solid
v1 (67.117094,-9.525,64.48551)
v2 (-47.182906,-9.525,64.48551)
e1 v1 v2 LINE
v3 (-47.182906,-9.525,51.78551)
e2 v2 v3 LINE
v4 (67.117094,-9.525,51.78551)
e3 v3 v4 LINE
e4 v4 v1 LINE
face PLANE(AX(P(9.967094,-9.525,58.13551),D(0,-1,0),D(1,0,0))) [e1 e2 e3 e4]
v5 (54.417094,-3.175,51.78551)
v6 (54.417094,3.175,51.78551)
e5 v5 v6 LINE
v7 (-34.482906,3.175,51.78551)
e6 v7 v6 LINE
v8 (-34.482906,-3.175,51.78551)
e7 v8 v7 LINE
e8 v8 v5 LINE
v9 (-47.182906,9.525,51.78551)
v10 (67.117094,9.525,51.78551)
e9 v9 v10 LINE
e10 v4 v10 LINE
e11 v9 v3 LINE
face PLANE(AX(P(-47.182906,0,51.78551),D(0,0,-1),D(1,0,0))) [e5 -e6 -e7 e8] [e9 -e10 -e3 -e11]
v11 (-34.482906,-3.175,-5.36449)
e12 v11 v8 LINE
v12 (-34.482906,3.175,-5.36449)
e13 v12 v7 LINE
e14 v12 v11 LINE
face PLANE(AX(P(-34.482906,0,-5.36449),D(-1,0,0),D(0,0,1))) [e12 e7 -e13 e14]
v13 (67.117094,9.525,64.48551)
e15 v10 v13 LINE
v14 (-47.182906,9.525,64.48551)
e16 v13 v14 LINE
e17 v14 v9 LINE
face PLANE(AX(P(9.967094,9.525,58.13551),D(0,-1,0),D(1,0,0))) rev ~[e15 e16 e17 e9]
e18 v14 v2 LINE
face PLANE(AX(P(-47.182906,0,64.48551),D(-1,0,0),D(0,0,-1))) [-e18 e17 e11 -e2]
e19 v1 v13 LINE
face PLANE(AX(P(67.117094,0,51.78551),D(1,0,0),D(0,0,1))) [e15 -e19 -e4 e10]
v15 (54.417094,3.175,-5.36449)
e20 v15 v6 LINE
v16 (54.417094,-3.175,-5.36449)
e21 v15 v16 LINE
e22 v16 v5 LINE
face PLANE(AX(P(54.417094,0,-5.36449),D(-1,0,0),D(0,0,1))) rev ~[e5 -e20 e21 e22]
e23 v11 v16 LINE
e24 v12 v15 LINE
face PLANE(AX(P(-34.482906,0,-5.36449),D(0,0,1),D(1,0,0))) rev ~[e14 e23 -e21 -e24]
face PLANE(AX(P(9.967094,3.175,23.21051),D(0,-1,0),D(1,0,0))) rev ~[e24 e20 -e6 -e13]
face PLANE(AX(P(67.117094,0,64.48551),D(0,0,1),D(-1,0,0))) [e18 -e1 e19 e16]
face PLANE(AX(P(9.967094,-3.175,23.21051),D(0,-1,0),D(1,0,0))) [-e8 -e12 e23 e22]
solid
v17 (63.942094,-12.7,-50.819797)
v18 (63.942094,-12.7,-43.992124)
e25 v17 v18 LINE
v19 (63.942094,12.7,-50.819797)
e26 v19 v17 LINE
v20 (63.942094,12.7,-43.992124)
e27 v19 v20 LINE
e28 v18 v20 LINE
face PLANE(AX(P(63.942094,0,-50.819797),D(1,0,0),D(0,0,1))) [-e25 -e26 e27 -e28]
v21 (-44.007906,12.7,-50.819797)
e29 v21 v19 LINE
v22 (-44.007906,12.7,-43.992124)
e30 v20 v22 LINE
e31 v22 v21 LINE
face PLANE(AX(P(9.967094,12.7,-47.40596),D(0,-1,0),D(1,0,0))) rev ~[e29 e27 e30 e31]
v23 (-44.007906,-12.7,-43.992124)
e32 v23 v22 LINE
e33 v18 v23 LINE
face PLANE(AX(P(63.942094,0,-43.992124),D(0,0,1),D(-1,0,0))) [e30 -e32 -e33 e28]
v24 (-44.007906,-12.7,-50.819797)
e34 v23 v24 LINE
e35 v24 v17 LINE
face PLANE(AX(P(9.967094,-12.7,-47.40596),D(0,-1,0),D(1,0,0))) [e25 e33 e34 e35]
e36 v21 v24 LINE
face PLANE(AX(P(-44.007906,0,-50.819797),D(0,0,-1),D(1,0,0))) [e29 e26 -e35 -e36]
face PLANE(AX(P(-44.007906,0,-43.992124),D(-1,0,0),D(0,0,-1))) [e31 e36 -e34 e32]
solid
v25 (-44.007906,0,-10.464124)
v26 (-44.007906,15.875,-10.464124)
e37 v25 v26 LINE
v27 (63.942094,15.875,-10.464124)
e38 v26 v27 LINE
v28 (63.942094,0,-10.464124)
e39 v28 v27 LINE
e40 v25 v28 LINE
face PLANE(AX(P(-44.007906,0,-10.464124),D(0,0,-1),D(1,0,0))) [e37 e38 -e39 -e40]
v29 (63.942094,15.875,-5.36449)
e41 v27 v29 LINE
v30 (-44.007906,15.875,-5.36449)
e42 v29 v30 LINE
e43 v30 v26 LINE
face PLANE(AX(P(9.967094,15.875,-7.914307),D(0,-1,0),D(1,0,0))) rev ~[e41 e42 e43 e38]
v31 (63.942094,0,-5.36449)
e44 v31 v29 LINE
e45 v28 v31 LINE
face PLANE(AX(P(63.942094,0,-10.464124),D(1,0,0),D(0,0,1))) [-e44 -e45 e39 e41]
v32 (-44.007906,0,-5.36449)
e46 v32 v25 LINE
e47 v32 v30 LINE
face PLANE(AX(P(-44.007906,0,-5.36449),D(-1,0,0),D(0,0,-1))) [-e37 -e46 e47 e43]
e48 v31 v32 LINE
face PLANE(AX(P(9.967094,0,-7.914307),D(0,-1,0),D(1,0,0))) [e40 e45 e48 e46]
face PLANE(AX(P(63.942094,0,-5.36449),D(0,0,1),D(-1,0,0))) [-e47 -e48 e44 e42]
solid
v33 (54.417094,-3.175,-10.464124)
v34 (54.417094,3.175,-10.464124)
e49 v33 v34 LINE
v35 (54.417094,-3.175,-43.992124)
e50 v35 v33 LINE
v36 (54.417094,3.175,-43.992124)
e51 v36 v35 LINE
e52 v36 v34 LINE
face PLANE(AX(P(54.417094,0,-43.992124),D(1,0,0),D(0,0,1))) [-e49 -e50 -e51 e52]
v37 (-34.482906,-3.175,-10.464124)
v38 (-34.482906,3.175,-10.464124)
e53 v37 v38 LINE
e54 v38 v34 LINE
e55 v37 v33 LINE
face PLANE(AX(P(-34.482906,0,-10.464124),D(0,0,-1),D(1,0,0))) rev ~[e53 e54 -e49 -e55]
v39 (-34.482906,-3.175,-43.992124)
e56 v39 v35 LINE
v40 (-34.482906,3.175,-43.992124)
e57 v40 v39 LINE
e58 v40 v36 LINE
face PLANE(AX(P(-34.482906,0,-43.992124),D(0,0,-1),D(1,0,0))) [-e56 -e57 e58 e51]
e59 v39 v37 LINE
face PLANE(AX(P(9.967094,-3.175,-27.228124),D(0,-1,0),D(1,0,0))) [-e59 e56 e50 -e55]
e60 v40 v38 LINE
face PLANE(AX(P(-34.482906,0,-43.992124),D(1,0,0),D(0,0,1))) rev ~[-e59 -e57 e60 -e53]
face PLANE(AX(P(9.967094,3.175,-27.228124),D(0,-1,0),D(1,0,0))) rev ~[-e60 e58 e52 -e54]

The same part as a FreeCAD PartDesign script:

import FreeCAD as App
import Part
import Sketcher
Q = App.Units.Quantity


def add_polygon(sketch, points):
    """Adds a closed chain of lines whose ends are joined by coincident constraints."""
    first, n = sketch.GeometryCount, len(points)
    for a, b in zip(points, points[1:] + points[:1]):
        sketch.addGeometry(Part.LineSegment(App.Vector(*a, 0), App.Vector(*b, 0)), False)
    for i in range(n):
        sketch.addConstraint(Sketcher.Constraint("Coincident", first + i, 2, first + (i + 1) % n, 1))

doc = App.newDocument("Part")
params = doc.addObject("Spreadsheet::Sheet", "Params")
for row, (alias, value) in enumerate([
    ("sketch1_width", "4.5 in"),
    ("sketch1_height", "0.5 in"),
    ("pad1_length", "0.75 in"),
    ("sketch2_width", "3.5 in"),
    ("sketch2_height", "2.25 in"),
    ("sketch2_height2", "1.32 in"),
    ("pad2_length", "0.25 in"),
    ("sketch3_width", "4.25 in"),
    ("pad3_length", "1 in"),
    ("sketch4_width", "4.25 in"),
    ("pad4_length", "0.625 in"),
], start=1):
    params.set(f"A{row}", alias)
    params.set(f"B{row}", "=" + value)
    params.setAlias(f"B{row}", alias)

body = doc.addObject("PartDesign::Body", "Body")
body.AllowCompound = True

sketch1 = doc.addObject("Sketcher::SketchObject", "Sketch")
body.addObject(sketch1)
sketch1.AttachmentSupport = (doc.XZ_Plane, [""])
sketch1.MapMode = "FlatFace"
add_polygon(sketch1, [(67.117094, 64.48551), (-47.182906, 64.48551), (-47.182906, 51.78551), (67.117094, 51.78551)])
sketch1.addConstraint(Sketcher.Constraint("Horizontal", 0))
sketch1.addConstraint(Sketcher.Constraint("Vertical", 1))
sketch1.addConstraint(Sketcher.Constraint("Horizontal", 2))
sketch1.addConstraint(Sketcher.Constraint("Vertical", 3))
sketch1.addConstraint(Sketcher.Constraint("DistanceX", 0, 2, 0, 1, Q("4.5 in")))
sketch1.addConstraint(Sketcher.Constraint("DistanceY", 1, 2, 1, 1, Q("0.5 in")))
sketch1.addConstraint(Sketcher.Constraint("DistanceY", -1, 1, 0, 2, Q("64.48551 mm")))
sketch1.addConstraint(Sketcher.Constraint("DistanceX", 0, 2, -1, 1, Q("47.182906 mm")))
sketch1.setExpression("Constraints[8]", "Params.sketch1_width")
sketch1.setExpression("Constraints[9]", "Params.sketch1_height")
pad1 = doc.addObject("PartDesign::Pad", "Pad")
body.addObject(pad1)
pad1.Profile = sketch1
pad1.setExpression("Length", "Params.pad1_length")
pad1.Midplane = True

sketch2 = doc.addObject("Sketcher::SketchObject", "Sketch001")
body.addObject(sketch2)
sketch2.AttachmentSupport = (doc.XZ_Plane, [""])
sketch2.MapMode = "FlatFace"
add_polygon(sketch2, [(-34.482906, 51.78551), (-34.482906, -5.36449), (54.417094, -5.36449), (54.417094, 51.78551)])
add_polygon(sketch2, [(-34.482906, -10.464124), (-34.482906, -43.992124), (54.417094, -43.992124), (54.417094, -10.464124)])
sketch2.addConstraint(Sketcher.Constraint("Vertical", 0))
sketch2.addConstraint(Sketcher.Constraint("Horizontal", 1))
sketch2.addConstraint(Sketcher.Constraint("Vertical", 2))
sketch2.addConstraint(Sketcher.Constraint("Horizontal", 3))
sketch2.addConstraint(Sketcher.Constraint("Vertical", 4))
sketch2.addConstraint(Sketcher.Constraint("Horizontal", 5))
sketch2.addConstraint(Sketcher.Constraint("Vertical", 6))
sketch2.addConstraint(Sketcher.Constraint("Horizontal", 7))
sketch2.addConstraint(Sketcher.Constraint("Vertical", 3, 2, 4, 2))
sketch2.addConstraint(Sketcher.Constraint("Vertical", 2, 2, 5, 2))
sketch2.addConstraint(Sketcher.Constraint("DistanceX", 1, 1, 1, 2, Q("3.5 in")))
sketch2.addConstraint(Sketcher.Constraint("DistanceY", 0, 2, 0, 1, Q("2.25 in")))
sketch2.addConstraint(Sketcher.Constraint("DistanceY", 4, 2, 4, 1, Q("1.32 in")))
sketch2.addConstraint(Sketcher.Constraint("DistanceY", 0, 2, -1, 1, Q("5.36449 mm")))
sketch2.addConstraint(Sketcher.Constraint("DistanceX", 0, 2, -1, 1, Q("34.482906 mm")))
sketch2.addConstraint(Sketcher.Constraint("DistanceY", 4, 2, -1, 1, Q("43.992124 mm")))
sketch2.setExpression("Constraints[18]", "Params.sketch2_width")
sketch2.setExpression("Constraints[19]", "Params.sketch2_height")
sketch2.setExpression("Constraints[20]", "Params.sketch2_height2")
pad2 = doc.addObject("PartDesign::Pad", "Pad001")
body.addObject(pad2)
pad2.Profile = sketch2
pad2.setExpression("Length", "Params.pad2_length")
pad2.Midplane = True
body2 = doc.addObject("PartDesign::Body", "Body001")

sketch3 = doc.addObject("Sketcher::SketchObject", "Sketch002")
body2.addObject(sketch3)
sketch3.AttachmentSupport = (doc.getObject("XZ_Plane001"), [""])
sketch3.MapMode = "FlatFace"
add_polygon(sketch3, [(-44.007906, -43.992124), (-44.007906, -50.819797), (63.942094, -50.819797), (63.942094, -43.992124)])
sketch3.addConstraint(Sketcher.Constraint("Vertical", 0))
sketch3.addConstraint(Sketcher.Constraint("Horizontal", 1))
sketch3.addConstraint(Sketcher.Constraint("Vertical", 2))
sketch3.addConstraint(Sketcher.Constraint("Horizontal", 3))
sketch3.addConstraint(Sketcher.Constraint("DistanceX", 1, 1, 1, 2, Q("4.25 in")))
sketch3.addConstraint(Sketcher.Constraint("DistanceY", 0, 2, 0, 1, Q("6.827673 mm")))
sketch3.addConstraint(Sketcher.Constraint("DistanceX", 0, 2, -1, 1, Q("44.007906 mm")))
sketch3.addConstraint(Sketcher.Constraint("DistanceY", 0, 2, -1, 1, Q("50.819797 mm")))
sketch3.setExpression("Constraints[8]", "Params.sketch3_width")
pad3 = doc.addObject("PartDesign::Pad", "Pad002")
body2.addObject(pad3)
pad3.Profile = sketch3
pad3.setExpression("Length", "Params.pad3_length")
pad3.Midplane = True
body3 = doc.addObject("PartDesign::Body", "Body002")

sketch4 = doc.addObject("Sketcher::SketchObject", "Sketch003")
body3.addObject(sketch4)
sketch4.AttachmentSupport = (doc.getObject("XZ_Plane002"), [""])
sketch4.MapMode = "FlatFace"
add_polygon(sketch4, [(-44.007906, -5.36449), (-44.007906, -10.464124), (63.942094, -10.464124), (63.942094, -5.36449)])
sketch4.addConstraint(Sketcher.Constraint("Vertical", 0))
sketch4.addConstraint(Sketcher.Constraint("Horizontal", 1))
sketch4.addConstraint(Sketcher.Constraint("Vertical", 2))
sketch4.addConstraint(Sketcher.Constraint("Horizontal", 3))
sketch4.addConstraint(Sketcher.Constraint("DistanceX", 1, 1, 1, 2, Q("4.25 in")))
sketch4.addConstraint(Sketcher.Constraint("DistanceY", 0, 2, 0, 1, Q("5.099634 mm")))
sketch4.addConstraint(Sketcher.Constraint("DistanceY", 2, 2, -1, 1, Q("5.36449 mm")))
sketch4.addConstraint(Sketcher.Constraint("DistanceX", 0, 2, -1, 1, Q("44.007906 mm")))
sketch4.setExpression("Constraints[8]", "Params.sketch4_width")
pad4 = doc.addObject("PartDesign::Pad", "Pad003")
body3.addObject(pad4)
pad4.Profile = sketch4
pad4.setExpression("Length", "Params.pad4_length")
pad4.Reversed = True

doc.recompute()
